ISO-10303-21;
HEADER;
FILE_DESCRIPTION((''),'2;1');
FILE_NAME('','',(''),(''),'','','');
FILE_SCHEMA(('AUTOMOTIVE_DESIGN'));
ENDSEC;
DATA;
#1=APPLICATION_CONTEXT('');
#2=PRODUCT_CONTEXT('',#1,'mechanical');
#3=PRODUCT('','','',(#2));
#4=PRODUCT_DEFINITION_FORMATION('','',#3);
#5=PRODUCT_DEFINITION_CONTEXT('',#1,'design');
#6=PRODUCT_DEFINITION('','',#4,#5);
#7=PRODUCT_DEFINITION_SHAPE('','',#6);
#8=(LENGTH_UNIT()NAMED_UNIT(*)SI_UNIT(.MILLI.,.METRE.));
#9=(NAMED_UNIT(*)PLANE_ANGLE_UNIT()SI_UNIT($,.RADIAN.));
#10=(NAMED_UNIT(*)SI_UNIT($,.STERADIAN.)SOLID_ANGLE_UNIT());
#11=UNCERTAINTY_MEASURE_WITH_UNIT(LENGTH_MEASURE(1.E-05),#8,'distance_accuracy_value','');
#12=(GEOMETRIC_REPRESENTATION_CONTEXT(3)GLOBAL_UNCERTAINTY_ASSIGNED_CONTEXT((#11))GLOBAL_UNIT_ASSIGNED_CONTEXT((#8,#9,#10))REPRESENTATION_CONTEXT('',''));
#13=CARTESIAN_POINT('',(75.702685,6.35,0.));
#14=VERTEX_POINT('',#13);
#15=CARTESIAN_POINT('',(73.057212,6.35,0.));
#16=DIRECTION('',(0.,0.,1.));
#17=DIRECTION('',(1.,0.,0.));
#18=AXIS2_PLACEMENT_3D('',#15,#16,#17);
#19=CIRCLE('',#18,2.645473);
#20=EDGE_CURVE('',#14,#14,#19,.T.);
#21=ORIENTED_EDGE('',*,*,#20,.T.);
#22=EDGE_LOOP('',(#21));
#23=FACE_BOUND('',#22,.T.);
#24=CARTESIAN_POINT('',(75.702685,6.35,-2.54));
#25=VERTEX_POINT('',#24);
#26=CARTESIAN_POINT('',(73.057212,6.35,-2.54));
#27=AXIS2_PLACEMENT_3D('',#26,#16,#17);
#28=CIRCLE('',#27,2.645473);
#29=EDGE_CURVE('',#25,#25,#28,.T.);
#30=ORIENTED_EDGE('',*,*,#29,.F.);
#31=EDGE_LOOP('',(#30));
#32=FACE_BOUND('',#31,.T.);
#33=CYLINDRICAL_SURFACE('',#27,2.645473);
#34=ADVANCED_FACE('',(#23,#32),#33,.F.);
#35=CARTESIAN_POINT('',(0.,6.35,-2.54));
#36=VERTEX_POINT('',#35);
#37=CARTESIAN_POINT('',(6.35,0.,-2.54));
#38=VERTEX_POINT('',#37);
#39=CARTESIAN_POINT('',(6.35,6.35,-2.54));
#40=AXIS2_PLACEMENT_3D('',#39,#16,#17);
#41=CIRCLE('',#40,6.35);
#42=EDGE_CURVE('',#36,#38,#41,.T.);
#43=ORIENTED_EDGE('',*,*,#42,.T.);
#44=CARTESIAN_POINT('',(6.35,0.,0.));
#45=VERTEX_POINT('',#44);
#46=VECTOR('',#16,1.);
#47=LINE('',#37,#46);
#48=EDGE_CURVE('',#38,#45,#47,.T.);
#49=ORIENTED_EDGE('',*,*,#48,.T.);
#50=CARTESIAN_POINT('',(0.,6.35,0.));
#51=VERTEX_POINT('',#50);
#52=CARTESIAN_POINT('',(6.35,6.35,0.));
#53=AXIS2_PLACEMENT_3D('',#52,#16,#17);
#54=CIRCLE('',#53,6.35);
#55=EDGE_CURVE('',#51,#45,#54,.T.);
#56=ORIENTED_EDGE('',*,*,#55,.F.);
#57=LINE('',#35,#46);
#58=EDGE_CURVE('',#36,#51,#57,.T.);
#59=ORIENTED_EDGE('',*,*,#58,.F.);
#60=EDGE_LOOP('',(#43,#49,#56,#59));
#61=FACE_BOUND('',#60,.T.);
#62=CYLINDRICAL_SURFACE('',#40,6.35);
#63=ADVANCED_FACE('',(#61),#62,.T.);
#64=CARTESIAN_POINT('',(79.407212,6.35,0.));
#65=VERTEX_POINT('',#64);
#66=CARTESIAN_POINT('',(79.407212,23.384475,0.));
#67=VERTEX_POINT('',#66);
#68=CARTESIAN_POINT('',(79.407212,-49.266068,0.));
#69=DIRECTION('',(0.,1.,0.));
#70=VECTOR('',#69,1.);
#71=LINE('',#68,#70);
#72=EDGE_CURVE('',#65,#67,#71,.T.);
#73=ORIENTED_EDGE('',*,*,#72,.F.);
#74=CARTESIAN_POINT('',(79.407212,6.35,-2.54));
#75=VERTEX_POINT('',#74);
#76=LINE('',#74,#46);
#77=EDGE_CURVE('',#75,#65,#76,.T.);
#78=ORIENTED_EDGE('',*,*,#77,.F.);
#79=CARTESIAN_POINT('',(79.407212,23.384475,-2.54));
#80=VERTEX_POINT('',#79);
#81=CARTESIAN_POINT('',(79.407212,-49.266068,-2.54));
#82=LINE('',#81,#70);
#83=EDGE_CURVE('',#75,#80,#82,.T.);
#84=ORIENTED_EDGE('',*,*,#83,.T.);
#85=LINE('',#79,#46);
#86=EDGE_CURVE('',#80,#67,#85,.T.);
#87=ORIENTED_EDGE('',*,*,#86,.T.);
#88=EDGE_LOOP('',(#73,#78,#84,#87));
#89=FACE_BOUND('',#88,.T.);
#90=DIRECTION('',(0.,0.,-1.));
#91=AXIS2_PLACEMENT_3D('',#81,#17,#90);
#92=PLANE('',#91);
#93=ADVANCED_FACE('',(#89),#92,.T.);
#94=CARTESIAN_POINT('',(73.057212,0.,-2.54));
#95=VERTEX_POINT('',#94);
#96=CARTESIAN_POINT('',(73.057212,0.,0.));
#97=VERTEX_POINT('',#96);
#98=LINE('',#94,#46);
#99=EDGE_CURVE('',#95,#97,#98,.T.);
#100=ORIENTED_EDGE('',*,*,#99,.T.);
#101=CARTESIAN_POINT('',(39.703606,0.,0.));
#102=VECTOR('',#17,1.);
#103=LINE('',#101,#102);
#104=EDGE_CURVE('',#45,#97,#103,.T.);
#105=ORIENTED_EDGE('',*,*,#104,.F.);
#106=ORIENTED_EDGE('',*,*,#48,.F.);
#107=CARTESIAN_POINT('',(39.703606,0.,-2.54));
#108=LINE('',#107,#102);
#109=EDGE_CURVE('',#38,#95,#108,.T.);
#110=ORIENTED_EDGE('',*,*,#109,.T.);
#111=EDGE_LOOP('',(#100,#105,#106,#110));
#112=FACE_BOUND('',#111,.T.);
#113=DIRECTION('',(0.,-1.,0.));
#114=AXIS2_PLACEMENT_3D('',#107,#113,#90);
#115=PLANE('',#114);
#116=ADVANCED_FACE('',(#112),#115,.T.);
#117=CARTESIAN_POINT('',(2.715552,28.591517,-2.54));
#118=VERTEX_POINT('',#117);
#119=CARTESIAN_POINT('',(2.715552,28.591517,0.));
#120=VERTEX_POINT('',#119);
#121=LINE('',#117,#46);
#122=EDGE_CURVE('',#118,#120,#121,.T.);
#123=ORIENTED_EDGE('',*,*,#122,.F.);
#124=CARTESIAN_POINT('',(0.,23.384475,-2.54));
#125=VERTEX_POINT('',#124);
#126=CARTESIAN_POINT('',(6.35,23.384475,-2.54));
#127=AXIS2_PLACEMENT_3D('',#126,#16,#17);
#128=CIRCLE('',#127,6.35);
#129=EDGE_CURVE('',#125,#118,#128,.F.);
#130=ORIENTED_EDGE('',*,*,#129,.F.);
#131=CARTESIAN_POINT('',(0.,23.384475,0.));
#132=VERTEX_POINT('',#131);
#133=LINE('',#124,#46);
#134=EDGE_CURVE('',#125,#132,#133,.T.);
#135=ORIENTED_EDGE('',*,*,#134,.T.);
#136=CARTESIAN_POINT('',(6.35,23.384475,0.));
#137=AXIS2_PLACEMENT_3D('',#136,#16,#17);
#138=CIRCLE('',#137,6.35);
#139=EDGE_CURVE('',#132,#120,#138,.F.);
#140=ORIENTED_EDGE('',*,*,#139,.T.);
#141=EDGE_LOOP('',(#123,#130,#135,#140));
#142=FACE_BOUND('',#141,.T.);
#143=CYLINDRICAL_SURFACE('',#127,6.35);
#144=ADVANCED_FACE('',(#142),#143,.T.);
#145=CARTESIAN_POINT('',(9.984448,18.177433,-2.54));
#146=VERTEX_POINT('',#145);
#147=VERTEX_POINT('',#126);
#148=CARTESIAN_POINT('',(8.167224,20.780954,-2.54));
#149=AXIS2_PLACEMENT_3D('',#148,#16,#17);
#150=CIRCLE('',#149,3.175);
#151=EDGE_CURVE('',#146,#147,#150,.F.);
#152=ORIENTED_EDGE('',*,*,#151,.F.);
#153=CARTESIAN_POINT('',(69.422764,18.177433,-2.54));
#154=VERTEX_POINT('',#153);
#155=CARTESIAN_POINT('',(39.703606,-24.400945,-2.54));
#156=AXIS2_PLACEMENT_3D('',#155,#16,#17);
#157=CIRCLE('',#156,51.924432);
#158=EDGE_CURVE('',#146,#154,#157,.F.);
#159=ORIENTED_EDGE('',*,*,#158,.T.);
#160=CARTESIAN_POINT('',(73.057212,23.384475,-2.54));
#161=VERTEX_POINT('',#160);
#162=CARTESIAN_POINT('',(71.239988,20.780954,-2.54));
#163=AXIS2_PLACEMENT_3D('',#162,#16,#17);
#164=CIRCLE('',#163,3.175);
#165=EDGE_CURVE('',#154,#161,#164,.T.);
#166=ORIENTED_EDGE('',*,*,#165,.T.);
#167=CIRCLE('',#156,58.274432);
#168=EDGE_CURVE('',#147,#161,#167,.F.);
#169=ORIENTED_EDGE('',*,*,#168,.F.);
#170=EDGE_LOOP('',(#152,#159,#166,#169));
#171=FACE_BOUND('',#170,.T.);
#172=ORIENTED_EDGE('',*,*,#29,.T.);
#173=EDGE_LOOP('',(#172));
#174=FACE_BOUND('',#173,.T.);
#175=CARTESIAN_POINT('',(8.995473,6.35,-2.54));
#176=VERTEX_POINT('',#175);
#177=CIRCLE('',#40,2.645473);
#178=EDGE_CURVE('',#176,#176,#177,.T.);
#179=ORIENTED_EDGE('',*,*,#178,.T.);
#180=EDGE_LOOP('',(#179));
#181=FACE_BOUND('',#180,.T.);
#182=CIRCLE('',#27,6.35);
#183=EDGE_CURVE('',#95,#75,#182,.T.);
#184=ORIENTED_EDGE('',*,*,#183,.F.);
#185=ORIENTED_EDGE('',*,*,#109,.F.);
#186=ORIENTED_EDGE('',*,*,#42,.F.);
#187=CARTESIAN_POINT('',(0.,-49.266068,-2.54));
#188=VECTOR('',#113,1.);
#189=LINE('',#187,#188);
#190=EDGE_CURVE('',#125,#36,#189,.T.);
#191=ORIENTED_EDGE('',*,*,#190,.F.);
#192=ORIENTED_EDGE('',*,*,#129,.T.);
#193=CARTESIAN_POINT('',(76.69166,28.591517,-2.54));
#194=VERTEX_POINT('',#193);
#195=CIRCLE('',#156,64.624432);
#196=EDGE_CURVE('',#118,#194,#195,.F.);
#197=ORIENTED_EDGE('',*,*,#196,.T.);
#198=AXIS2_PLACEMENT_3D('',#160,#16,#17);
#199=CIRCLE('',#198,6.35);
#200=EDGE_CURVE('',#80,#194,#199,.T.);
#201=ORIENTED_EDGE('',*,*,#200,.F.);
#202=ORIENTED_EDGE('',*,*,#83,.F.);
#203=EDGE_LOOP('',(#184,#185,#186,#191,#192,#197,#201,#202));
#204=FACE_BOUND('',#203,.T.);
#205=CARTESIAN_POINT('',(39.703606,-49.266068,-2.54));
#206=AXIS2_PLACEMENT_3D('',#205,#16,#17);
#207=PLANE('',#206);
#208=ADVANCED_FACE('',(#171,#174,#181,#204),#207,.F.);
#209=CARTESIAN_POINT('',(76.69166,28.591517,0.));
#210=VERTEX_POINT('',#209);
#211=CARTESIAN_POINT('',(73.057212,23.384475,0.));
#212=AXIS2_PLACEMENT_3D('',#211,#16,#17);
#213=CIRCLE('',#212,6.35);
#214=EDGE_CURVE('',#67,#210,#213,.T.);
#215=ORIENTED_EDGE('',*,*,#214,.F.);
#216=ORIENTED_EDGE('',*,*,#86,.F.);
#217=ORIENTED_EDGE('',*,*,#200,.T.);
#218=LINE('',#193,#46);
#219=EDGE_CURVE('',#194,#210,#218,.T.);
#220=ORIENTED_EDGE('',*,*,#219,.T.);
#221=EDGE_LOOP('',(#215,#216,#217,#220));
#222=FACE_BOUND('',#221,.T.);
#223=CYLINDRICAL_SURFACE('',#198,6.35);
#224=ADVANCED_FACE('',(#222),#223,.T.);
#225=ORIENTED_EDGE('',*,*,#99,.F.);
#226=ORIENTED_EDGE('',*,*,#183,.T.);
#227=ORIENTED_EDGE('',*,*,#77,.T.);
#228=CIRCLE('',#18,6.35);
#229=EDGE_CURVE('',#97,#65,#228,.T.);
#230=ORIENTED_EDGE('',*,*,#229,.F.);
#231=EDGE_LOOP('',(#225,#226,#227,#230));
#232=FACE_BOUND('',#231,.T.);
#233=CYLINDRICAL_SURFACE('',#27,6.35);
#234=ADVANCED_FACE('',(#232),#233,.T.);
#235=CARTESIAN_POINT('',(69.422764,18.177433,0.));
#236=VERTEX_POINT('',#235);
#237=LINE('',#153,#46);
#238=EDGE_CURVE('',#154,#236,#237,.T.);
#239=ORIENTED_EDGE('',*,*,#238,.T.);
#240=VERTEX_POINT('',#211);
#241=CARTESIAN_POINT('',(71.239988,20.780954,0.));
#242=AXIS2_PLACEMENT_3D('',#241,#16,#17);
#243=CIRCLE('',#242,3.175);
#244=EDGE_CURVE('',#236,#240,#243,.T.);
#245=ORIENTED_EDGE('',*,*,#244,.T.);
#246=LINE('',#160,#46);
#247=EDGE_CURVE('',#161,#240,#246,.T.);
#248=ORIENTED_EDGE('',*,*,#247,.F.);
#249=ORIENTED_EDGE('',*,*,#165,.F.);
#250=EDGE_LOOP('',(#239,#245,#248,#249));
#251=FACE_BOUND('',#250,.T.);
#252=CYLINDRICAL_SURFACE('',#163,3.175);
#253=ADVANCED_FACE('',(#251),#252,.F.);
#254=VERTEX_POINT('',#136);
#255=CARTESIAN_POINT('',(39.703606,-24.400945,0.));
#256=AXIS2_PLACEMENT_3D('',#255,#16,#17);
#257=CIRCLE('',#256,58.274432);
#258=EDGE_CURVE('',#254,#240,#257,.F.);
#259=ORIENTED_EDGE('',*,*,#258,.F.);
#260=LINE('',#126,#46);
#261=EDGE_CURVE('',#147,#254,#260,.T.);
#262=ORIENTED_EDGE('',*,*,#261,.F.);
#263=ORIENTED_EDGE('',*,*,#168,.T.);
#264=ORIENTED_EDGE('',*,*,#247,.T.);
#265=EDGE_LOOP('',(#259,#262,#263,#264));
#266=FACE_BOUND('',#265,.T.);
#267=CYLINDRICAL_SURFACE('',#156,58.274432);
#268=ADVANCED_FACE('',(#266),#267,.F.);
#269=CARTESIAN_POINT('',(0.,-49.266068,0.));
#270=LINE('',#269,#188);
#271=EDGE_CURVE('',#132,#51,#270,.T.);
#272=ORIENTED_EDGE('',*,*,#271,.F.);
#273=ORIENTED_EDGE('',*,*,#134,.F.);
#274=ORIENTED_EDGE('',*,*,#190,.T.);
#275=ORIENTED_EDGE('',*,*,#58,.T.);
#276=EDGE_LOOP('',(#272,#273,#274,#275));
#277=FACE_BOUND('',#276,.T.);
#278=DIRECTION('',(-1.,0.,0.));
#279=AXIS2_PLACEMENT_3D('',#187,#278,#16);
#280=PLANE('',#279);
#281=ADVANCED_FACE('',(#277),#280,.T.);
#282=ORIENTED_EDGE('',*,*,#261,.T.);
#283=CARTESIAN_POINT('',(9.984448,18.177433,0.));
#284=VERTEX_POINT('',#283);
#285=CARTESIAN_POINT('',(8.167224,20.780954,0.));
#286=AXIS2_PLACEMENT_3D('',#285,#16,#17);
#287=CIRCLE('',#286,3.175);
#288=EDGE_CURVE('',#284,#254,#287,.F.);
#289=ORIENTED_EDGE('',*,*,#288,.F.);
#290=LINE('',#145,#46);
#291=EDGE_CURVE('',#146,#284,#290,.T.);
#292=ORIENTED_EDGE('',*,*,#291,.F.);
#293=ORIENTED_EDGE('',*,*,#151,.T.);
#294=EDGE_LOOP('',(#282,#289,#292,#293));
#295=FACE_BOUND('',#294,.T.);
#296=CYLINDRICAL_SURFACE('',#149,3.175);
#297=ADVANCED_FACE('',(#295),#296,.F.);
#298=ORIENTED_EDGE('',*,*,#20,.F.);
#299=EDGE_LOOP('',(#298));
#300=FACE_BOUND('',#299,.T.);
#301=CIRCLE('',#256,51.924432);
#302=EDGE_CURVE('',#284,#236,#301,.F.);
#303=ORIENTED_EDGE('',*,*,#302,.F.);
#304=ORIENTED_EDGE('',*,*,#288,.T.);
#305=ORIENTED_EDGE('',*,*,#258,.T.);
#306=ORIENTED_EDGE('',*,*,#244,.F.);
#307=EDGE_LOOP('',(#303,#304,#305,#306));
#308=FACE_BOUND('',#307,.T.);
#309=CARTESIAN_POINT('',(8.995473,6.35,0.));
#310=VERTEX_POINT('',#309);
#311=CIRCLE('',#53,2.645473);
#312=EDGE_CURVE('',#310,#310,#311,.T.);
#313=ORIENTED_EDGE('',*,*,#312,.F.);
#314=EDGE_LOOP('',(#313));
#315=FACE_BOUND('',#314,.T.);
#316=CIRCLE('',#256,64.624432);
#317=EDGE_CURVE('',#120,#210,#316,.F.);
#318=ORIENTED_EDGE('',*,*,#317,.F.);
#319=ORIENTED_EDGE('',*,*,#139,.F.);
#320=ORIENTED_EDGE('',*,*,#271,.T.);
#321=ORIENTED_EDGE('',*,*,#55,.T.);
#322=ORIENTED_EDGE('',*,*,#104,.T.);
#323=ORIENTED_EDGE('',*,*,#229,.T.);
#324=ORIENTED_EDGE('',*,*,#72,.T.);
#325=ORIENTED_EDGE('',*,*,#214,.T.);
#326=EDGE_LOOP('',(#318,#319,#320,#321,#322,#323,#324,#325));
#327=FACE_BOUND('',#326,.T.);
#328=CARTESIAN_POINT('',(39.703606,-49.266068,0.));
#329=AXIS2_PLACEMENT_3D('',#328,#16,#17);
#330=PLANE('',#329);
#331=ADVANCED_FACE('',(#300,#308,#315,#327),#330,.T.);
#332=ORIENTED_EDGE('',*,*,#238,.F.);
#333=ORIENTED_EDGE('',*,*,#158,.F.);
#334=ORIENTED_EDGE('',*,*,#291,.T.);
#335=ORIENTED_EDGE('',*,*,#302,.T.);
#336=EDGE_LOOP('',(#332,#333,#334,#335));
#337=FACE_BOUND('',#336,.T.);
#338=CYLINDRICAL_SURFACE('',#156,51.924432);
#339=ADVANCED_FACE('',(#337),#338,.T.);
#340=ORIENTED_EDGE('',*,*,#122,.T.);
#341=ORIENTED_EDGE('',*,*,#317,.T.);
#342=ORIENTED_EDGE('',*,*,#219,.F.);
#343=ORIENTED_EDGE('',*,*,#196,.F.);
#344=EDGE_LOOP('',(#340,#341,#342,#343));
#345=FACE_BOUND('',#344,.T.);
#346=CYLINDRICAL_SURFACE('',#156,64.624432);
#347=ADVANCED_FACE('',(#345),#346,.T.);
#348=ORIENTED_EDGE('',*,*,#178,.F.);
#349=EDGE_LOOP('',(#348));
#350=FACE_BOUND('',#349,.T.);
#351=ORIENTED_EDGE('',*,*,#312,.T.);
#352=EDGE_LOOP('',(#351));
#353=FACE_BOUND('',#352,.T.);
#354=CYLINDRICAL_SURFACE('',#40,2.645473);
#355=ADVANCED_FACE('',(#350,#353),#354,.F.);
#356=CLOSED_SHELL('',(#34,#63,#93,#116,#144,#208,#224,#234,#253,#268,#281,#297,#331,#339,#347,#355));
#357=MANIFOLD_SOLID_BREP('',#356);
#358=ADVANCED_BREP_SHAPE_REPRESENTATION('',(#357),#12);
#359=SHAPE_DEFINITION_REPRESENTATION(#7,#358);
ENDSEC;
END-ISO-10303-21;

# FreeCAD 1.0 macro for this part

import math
import FreeCAD as App
import Part
import Sketcher

V = App.Vector
Q = App.Units.Quantity

doc = App.newDocument("Part")
body = doc.addObject("PartDesign::Body", "Body")

sketch1 = body.newObject("Sketcher::SketchObject", "Sketch")
sketch1.AttachmentSupport = (doc.getObject("XY_Plane"), [""])
sketch1.MapMode = "FlatFace"
sketch1.addGeometry([
    Part.ArcOfCircle(Part.Circle(V(6.4, 23.4, 0), V(0, 0, 1), 6.4), math.radians(125), math.radians(180)),
    Part.LineSegment(V(0, 23.4, 0), V(0, 6.3, 0)),
    Part.ArcOfCircle(Part.Circle(V(6.3, 6.3, 0), V(0, 0, 1), 6.3), math.radians(180), math.radians(270)),
    Part.LineSegment(V(6.3, 0, 0), V(73.1, 0, 0)),
    Part.ArcOfCircle(Part.Circle(V(73.1, 6.3, 0), V(0, 0, 1), 6.3), math.radians(-90), math.radians(0)),
    Part.LineSegment(V(79.4, 6.3, 0), V(79.4, 23.4, 0)),
    Part.ArcOfCircle(Part.Circle(V(73.1, 23.4, 0), V(0, 0, 1), 6.3), math.radians(0), math.radians(55)),
    Part.ArcOfCircle(Part.Circle(V(39.7, -24.4, 0), V(0, 0, 1), 64.6), math.radians(55), math.radians(90)),
    Part.ArcOfCircle(Part.Circle(V(39.7, -24.4, 0), V(0, 0, 1), 64.6), math.radians(90), math.radians(125)),
    Part.ArcOfCircle(Part.Circle(V(39.7, -24.4, 0), V(0, 0, 1), 58.3), math.radians(90), math.radians(125)),
    Part.ArcOfCircle(Part.Circle(V(39.7, -24.4, 0), V(0, 0, 1), 58.3), math.radians(55), math.radians(90)),
    Part.ArcOfCircle(Part.Circle(V(71.2, 20.8, 0), V(0, 0, 1), 3.2), math.radians(-125), math.radians(55)),
    Part.ArcOfCircle(Part.Circle(V(39.7, -24.4, 0), V(0, 0, 1), 51.9), math.radians(55), math.radians(90)),
    Part.ArcOfCircle(Part.Circle(V(39.7, -24.4, 0), V(0, 0, 1), 51.9), math.radians(90), math.radians(125)),
    Part.ArcOfCircle(Part.Circle(V(8.2, 20.8, 0), V(0, 0, 1), 3.2), math.radians(125), math.radians(305)),
    Part.Circle(V(6.3, 6.3, 0), V(0, 0, 1), 2.6),
    Part.Circle(V(73.1, 6.3, 0), V(0, 0, 1), 2.6),
], False)
sketch1.addConstraint([
    Sketcher.Constraint("Tangent", 0, 2, 1, 1),
    Sketcher.Constraint("Tangent", 1, 2, 2, 1),
    Sketcher.Constraint("Tangent", 2, 2, 3, 1),
    Sketcher.Constraint("Tangent", 3, 2, 4, 1),
    Sketcher.Constraint("Tangent", 4, 2, 5, 1),
    Sketcher.Constraint("Tangent", 5, 2, 6, 1),
    Sketcher.Constraint("Tangent", 6, 2, 7, 1),
    Sketcher.Constraint("Tangent", 7, 2, 8, 1),
    Sketcher.Constraint("Tangent", 8, 2, 0, 1),
    Sketcher.Constraint("Tangent", 9, 1, 10, 2),
    Sketcher.Constraint("Tangent", 10, 1, 11, 2),
    Sketcher.Constraint("Tangent", 11, 1, 12, 1),
    Sketcher.Constraint("Tangent", 12, 2, 13, 1),
    Sketcher.Constraint("Tangent", 13, 2, 14, 2),
    Sketcher.Constraint("Tangent", 14, 1, 9, 2),
    Sketcher.Constraint("Vertical", 1),
    Sketcher.Constraint("Horizontal", 3),
    Sketcher.Constraint("Vertical", 5),
    Sketcher.Constraint("Coincident", 9, 3, 7, 3),
    Sketcher.Constraint("Coincident", 12, 3, 7, 3),
    Sketcher.Constraint("Coincident", 15, 3, 2, 3),
    Sketcher.Constraint("Coincident", 16, 3, 4, 3),
    Sketcher.Constraint("Coincident", 10, 1, 6, 3),
    Sketcher.Constraint("Coincident", 14, 1, 0, 3),
    Sketcher.Constraint("Equal", 0, 2),
    Sketcher.Constraint("Equal", 2, 4),
    Sketcher.Constraint("Equal", 4, 6),
    Sketcher.Constraint("Equal", 7, 8),
    Sketcher.Constraint("Equal", 12, 13),
    Sketcher.Constraint("Equal", 15, 16),
    Sketcher.Constraint("PointOnObject", 0, 2, -2),
    Sketcher.Constraint("PointOnObject", 2, 2, -1),
    Sketcher.Constraint("Horizontal", 0, 3, 6, 3),
    Sketcher.Constraint("Vertical", 13, 3, 7, 2),
    Sketcher.Constraint("Vertical", 7, 2, 9, 1),
    Sketcher.Constraint("Vertical", 9, 1, 12, 2),
    Sketcher.Constraint("Radius", 0, Q("0.25 in")),
    Sketcher.Constraint("Radius", 11, Q("0.125 in")),
    Sketcher.Constraint("Radius", 7, 64.624432),
    Sketcher.Constraint("Diameter", 15, 5.290945),
    Sketcher.Constraint("DistanceY", 9, 3, 11, 3, 45.181899),
    Sketcher.Constraint("DistanceY", 1, 2, 1, 1, 17.034475),
])
pad1 = body.newObject("PartDesign::Pad", "Pad")
pad1.Profile = sketch1
pad1.Length = Q("0.1 in")
pad1.Reversed = True

doc.recompute()
